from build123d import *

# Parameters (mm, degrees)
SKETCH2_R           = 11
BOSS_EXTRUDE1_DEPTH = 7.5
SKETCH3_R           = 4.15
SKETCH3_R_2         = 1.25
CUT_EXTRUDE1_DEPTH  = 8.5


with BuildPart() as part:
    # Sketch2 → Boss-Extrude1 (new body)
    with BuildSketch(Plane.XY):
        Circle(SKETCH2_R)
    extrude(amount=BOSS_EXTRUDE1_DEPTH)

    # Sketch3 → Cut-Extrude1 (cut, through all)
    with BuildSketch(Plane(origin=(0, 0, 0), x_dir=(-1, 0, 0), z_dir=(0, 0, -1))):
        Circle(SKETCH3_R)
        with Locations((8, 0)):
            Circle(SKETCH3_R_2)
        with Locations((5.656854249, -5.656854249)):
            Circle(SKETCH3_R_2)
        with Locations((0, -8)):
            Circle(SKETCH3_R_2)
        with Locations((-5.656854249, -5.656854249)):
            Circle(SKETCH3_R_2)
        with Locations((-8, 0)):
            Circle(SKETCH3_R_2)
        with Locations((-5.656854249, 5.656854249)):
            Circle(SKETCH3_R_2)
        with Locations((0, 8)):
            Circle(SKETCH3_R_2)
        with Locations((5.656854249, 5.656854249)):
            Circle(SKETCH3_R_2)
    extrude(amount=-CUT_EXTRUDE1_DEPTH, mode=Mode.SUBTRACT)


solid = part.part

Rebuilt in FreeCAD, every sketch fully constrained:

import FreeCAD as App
import Part
import Sketcher

V = App.Vector

doc = App.newDocument("Part")
body = doc.addObject("PartDesign::Body", "Body")

sketch1 = doc.addObject("Sketcher::SketchObject", "Sketch")
body.addObject(sketch1)
sketch1.AttachmentSupport = (doc.XY_Plane, [""])
sketch1.MapMode = "FlatFace"
sketch1.addGeometry(Part.Circle(V(0, 0, 0), V(0, 0, 1), 11), False)
sketch1.addConstraint([
    Sketcher.Constraint("Coincident", 0, 3, -1, 1),
    Sketcher.Constraint("Diameter", 0, 22.0),
])
pad1 = doc.addObject("PartDesign::Pad", "Pad")
body.addObject(pad1)
pad1.Profile = sketch1
pad1.Length = 7.5

sketch2 = doc.addObject("Sketcher::SketchObject", "Sketch001")
body.addObject(sketch2)
sketch2.AttachmentSupport = (doc.XY_Plane, [""])
sketch2.MapMode = "FlatFace"
sketch2.addGeometry([
    Part.Circle(V(0, 0, 0), V(0, 0, 1), 4.2),
    Part.Circle(V(-8, 0, 0), V(0, 0, 1), 1.2),
    Part.Circle(V(-5.7, -5.7, 0), V(0, 0, 1), 1.2),
    Part.Circle(V(0, -8, 0), V(0, 0, 1), 1.2),
    Part.Circle(V(5.7, -5.7, 0), V(0, 0, 1), 1.2),
    Part.Circle(V(8, 0, 0), V(0, 0, 1), 1.2),
    Part.Circle(V(5.7, 5.7, 0), V(0, 0, 1), 1.2),
    Part.Circle(V(0, 8, 0), V(0, 0, 1), 1.2),
    Part.Circle(V(-5.7, 5.7, 0), V(0, 0, 1), 1.2),
], False)
sketch2.addConstraint([
    Sketcher.Constraint("Coincident", 0, 3, -1, 1),
    Sketcher.Constraint("Equal", 1, 2),
    Sketcher.Constraint("Equal", 2, 3),
    Sketcher.Constraint("Equal", 3, 4),
    Sketcher.Constraint("Equal", 4, 5),
    Sketcher.Constraint("Equal", 5, 6),
    Sketcher.Constraint("Equal", 6, 7),
    Sketcher.Constraint("Equal", 7, 8),
    Sketcher.Constraint("Symmetric", 1, 3, 5, 3, -1, 1),
    Sketcher.Constraint("Symmetric", 2, 3, 6, 3, -1, 1),
    Sketcher.Constraint("Symmetric", 3, 3, 7, 3, -1, 1),
    Sketcher.Constraint("Symmetric", 4, 3, 8, 3, -1, 1),
    Sketcher.Constraint("Symmetric", 2, 3, 4, 3, -2),
    Sketcher.Constraint("PointOnObject", 1, 3, -1),
    Sketcher.Constraint("PointOnObject", 3, 3, -2),
    Sketcher.Constraint("Diameter", 0, 8.3),
    Sketcher.Constraint("Diameter", 1, 2.5),
    Sketcher.Constraint("DistanceX", 1, 3, -1, 1, 8.0),
    Sketcher.Constraint("DistanceY", 3, 3, -1, 1, 8.0),
    Sketcher.Constraint("DistanceX", 2, 3, 4, 3, 11.313708),
    Sketcher.Constraint("DistanceY", 4, 3, 6, 3, 11.313708),
])
pocket1 = doc.addObject("PartDesign::Pocket", "Pocket")
body.addObject(pocket1)
pocket1.Profile = sketch2
pocket1.Type = "ThroughAll"
pocket1.Reversed = True

doc.recompute()
